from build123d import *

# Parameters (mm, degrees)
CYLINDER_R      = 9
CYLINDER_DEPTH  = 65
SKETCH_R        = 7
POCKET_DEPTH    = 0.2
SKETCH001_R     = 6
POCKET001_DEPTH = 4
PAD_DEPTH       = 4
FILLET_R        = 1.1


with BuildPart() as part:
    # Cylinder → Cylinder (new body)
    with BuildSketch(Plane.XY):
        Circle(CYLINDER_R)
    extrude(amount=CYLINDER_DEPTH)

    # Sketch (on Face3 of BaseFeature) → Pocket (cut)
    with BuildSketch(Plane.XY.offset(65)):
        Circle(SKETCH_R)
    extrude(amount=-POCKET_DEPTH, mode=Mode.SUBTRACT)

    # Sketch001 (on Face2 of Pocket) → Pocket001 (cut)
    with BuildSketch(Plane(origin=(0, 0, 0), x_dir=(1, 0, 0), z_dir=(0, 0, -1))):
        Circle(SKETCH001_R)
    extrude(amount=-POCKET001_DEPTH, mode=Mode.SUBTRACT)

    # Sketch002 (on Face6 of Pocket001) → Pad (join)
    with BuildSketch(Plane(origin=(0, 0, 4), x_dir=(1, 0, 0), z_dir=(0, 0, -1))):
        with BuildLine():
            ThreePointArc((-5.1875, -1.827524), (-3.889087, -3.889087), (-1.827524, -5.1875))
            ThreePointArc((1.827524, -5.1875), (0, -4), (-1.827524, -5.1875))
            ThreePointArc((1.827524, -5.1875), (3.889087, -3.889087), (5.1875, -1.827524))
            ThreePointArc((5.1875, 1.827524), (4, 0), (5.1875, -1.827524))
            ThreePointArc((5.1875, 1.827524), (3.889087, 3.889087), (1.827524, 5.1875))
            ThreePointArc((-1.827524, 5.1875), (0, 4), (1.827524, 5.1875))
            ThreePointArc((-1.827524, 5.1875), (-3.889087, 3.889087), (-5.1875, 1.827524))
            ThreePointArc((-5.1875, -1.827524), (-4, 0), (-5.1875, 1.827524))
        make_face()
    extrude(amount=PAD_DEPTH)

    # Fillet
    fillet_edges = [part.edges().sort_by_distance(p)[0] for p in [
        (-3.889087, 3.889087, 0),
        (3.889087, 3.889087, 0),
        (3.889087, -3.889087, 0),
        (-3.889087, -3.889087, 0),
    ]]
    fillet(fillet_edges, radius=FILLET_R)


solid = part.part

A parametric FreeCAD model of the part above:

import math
import FreeCAD as App
import Part
import Sketcher

V = App.Vector


def edges_at(feature, points):
    """Names of the edges that pass closest to the given points."""
    edges = feature.Shape.Edges
    near = lambda p: min(range(len(edges)), key=lambda i: edges[i].distToShape(Part.Vertex(*p))[0])
    return sorted({f"Edge{near(p) + 1}" for p in points})

doc = App.newDocument("Part")
body = doc.addObject("PartDesign::Body", "Body")

# Sketch on XY plane
sketch1 = body.newObject("Sketcher::SketchObject", "Sketch")
sketch1.AttachmentSupport = (doc.getObject("XY_Plane"), [""])
sketch1.MapMode = "FlatFace"
sketch1.addGeometry(Part.Circle(V(0, 0, 0), V(0, 0, 1), 9), False)
sketch1.addConstraint([
    Sketcher.Constraint("Coincident", 0, 3, -1, 1),
    Sketcher.Constraint("Diameter", 0, 18.0),
])
pad1 = body.newObject("PartDesign::Pad", "Pad")
pad1.Profile = sketch1
pad1.Length = 65

# Sketch on XY plane
sketch2 = body.newObject("Sketcher::SketchObject", "Sketch001")
sketch2.AttachmentSupport = (doc.getObject("XY_Plane"), [""])
sketch2.MapMode = "FlatFace"
sketch2.AttachmentOffset = App.Placement(V(0, 0, 65), App.Rotation())
sketch2.addGeometry(Part.Circle(V(0, 0, 0), V(0, 0, 1), 7), False)
sketch2.addConstraint([
    Sketcher.Constraint("Coincident", 0, 3, -1, 1),
    Sketcher.Constraint("Diameter", 0, 14.0),
])
pocket1 = body.newObject("PartDesign::Pocket", "Pocket")
pocket1.Profile = sketch2
pocket1.Length = 0.2

# Sketch on XY plane
sketch3 = body.newObject("Sketcher::SketchObject", "Sketch002")
sketch3.AttachmentSupport = (doc.getObject("XY_Plane"), [""])
sketch3.MapMode = "FlatFace"
sketch3.addGeometry(Part.Circle(V(0, 0, 0), V(0, 0, 1), 6), False)
sketch3.addConstraint([
    Sketcher.Constraint("Coincident", 0, 3, -1, 1),
    Sketcher.Constraint("Diameter", 0, 12.0),
])
pocket2 = body.newObject("PartDesign::Pocket", "Pocket001")
pocket2.Profile = sketch3
pocket2.Length = 4
pocket2.Reversed = True

# Sketch on XY plane
sketch4 = body.newObject("Sketcher::SketchObject", "Sketch003")
sketch4.AttachmentSupport = (doc.getObject("XY_Plane"), [""])
sketch4.MapMode = "FlatFace"
sketch4.AttachmentOffset = App.Placement(V(0, 0, 4), App.Rotation())
sketch4.addGeometry([
    Part.ArcOfCircle(Part.Circle(V(0, 0, 0), V(0, 0, 1), 5.5), math.radians(109), math.radians(161)),  # 0
    Part.ArcOfCircle(Part.Circle(V(0, 6, 0), V(0, 0, 1), 2), math.radians(-156), math.radians(-24)),  # 1
    Part.ArcOfCircle(Part.Circle(V(0, 0, 0), V(0, 0, 1), 5.5), math.radians(19), math.radians(71)),  # 2
    Part.ArcOfCircle(Part.Circle(V(6, 0, 0), V(0, 0, 1), 2), math.radians(114), math.radians(246)),  # 3
    Part.ArcOfCircle(Part.Circle(V(0, 0, 0), V(0, 0, 1), 5.5), math.radians(-71), math.radians(-19)),  # 4
    Part.ArcOfCircle(Part.Circle(V(0, -6, 0), V(0, 0, 1), 2), math.radians(24), math.radians(156)),  # 5
    Part.ArcOfCircle(Part.Circle(V(0, 0, 0), V(0, 0, 1), 5.5), math.radians(-161), math.radians(-109)),  # 6
    Part.ArcOfCircle(Part.Circle(V(-6, 0, 0), V(0, 0, 1), 2), math.radians(-66), math.radians(66)),  # 7
], False)
sketch4.addConstraint([
    Sketcher.Constraint("Coincident", 0, 1, 1, 1),
    Sketcher.Constraint("Coincident", 1, 2, 2, 2),
    Sketcher.Constraint("Coincident", 2, 1, 3, 1),
    Sketcher.Constraint("Coincident", 3, 2, 4, 2),
    Sketcher.Constraint("Coincident", 4, 1, 5, 1),
    Sketcher.Constraint("Coincident", 5, 2, 6, 2),
    Sketcher.Constraint("Coincident", 6, 1, 7, 1),
    Sketcher.Constraint("Coincident", 7, 2, 0, 2),
    Sketcher.Constraint("Coincident", 0, 3, -1, 1),
    Sketcher.Constraint("Coincident", 2, 3, -1, 1),
    Sketcher.Constraint("Coincident", 4, 3, -1, 1),
    Sketcher.Constraint("Coincident", 6, 3, -1, 1),
    Sketcher.Constraint("Equal", 0, 2),
    Sketcher.Constraint("Equal", 1, 3),
    Sketcher.Constraint("Equal", 2, 4),
    Sketcher.Constraint("Equal", 3, 5),
    Sketcher.Constraint("Equal", 4, 6),
    Sketcher.Constraint("Equal", 5, 7),
    Sketcher.Constraint("Symmetric", 1, 3, 5, 3, -1, 1),
    Sketcher.Constraint("Symmetric", 3, 3, 7, 3, -1, 1),
    Sketcher.Constraint("PointOnObject", 1, 3, -2),
    Sketcher.Constraint("PointOnObject", 3, 3, -1),
    Sketcher.Constraint("Radius", 1, 2.0),
    Sketcher.Constraint("DistanceY", -1, 1, 1, 3, 6.0),
    Sketcher.Constraint("DistanceX", -1, 1, 3, 3, 6.0),
    Sketcher.Constraint("Radius", 0, 5.500004),
])
pad2 = body.newObject("PartDesign::Pad", "Pad001")
pad2.Profile = sketch4
pad2.Length = 4
pad2.Reversed = True
doc.recompute()

fillet = body.newObject("PartDesign::Fillet", "Fillet")
fillet.Base = (pad2, edges_at(pad2, [
    (-3.889, 3.889, 0),
    (3.889, 3.889, 0),
    (3.889, -3.889, 0),
    (-3.889, -3.889, 0),
]))
fillet.Radius = 1.1

doc.recompute()
